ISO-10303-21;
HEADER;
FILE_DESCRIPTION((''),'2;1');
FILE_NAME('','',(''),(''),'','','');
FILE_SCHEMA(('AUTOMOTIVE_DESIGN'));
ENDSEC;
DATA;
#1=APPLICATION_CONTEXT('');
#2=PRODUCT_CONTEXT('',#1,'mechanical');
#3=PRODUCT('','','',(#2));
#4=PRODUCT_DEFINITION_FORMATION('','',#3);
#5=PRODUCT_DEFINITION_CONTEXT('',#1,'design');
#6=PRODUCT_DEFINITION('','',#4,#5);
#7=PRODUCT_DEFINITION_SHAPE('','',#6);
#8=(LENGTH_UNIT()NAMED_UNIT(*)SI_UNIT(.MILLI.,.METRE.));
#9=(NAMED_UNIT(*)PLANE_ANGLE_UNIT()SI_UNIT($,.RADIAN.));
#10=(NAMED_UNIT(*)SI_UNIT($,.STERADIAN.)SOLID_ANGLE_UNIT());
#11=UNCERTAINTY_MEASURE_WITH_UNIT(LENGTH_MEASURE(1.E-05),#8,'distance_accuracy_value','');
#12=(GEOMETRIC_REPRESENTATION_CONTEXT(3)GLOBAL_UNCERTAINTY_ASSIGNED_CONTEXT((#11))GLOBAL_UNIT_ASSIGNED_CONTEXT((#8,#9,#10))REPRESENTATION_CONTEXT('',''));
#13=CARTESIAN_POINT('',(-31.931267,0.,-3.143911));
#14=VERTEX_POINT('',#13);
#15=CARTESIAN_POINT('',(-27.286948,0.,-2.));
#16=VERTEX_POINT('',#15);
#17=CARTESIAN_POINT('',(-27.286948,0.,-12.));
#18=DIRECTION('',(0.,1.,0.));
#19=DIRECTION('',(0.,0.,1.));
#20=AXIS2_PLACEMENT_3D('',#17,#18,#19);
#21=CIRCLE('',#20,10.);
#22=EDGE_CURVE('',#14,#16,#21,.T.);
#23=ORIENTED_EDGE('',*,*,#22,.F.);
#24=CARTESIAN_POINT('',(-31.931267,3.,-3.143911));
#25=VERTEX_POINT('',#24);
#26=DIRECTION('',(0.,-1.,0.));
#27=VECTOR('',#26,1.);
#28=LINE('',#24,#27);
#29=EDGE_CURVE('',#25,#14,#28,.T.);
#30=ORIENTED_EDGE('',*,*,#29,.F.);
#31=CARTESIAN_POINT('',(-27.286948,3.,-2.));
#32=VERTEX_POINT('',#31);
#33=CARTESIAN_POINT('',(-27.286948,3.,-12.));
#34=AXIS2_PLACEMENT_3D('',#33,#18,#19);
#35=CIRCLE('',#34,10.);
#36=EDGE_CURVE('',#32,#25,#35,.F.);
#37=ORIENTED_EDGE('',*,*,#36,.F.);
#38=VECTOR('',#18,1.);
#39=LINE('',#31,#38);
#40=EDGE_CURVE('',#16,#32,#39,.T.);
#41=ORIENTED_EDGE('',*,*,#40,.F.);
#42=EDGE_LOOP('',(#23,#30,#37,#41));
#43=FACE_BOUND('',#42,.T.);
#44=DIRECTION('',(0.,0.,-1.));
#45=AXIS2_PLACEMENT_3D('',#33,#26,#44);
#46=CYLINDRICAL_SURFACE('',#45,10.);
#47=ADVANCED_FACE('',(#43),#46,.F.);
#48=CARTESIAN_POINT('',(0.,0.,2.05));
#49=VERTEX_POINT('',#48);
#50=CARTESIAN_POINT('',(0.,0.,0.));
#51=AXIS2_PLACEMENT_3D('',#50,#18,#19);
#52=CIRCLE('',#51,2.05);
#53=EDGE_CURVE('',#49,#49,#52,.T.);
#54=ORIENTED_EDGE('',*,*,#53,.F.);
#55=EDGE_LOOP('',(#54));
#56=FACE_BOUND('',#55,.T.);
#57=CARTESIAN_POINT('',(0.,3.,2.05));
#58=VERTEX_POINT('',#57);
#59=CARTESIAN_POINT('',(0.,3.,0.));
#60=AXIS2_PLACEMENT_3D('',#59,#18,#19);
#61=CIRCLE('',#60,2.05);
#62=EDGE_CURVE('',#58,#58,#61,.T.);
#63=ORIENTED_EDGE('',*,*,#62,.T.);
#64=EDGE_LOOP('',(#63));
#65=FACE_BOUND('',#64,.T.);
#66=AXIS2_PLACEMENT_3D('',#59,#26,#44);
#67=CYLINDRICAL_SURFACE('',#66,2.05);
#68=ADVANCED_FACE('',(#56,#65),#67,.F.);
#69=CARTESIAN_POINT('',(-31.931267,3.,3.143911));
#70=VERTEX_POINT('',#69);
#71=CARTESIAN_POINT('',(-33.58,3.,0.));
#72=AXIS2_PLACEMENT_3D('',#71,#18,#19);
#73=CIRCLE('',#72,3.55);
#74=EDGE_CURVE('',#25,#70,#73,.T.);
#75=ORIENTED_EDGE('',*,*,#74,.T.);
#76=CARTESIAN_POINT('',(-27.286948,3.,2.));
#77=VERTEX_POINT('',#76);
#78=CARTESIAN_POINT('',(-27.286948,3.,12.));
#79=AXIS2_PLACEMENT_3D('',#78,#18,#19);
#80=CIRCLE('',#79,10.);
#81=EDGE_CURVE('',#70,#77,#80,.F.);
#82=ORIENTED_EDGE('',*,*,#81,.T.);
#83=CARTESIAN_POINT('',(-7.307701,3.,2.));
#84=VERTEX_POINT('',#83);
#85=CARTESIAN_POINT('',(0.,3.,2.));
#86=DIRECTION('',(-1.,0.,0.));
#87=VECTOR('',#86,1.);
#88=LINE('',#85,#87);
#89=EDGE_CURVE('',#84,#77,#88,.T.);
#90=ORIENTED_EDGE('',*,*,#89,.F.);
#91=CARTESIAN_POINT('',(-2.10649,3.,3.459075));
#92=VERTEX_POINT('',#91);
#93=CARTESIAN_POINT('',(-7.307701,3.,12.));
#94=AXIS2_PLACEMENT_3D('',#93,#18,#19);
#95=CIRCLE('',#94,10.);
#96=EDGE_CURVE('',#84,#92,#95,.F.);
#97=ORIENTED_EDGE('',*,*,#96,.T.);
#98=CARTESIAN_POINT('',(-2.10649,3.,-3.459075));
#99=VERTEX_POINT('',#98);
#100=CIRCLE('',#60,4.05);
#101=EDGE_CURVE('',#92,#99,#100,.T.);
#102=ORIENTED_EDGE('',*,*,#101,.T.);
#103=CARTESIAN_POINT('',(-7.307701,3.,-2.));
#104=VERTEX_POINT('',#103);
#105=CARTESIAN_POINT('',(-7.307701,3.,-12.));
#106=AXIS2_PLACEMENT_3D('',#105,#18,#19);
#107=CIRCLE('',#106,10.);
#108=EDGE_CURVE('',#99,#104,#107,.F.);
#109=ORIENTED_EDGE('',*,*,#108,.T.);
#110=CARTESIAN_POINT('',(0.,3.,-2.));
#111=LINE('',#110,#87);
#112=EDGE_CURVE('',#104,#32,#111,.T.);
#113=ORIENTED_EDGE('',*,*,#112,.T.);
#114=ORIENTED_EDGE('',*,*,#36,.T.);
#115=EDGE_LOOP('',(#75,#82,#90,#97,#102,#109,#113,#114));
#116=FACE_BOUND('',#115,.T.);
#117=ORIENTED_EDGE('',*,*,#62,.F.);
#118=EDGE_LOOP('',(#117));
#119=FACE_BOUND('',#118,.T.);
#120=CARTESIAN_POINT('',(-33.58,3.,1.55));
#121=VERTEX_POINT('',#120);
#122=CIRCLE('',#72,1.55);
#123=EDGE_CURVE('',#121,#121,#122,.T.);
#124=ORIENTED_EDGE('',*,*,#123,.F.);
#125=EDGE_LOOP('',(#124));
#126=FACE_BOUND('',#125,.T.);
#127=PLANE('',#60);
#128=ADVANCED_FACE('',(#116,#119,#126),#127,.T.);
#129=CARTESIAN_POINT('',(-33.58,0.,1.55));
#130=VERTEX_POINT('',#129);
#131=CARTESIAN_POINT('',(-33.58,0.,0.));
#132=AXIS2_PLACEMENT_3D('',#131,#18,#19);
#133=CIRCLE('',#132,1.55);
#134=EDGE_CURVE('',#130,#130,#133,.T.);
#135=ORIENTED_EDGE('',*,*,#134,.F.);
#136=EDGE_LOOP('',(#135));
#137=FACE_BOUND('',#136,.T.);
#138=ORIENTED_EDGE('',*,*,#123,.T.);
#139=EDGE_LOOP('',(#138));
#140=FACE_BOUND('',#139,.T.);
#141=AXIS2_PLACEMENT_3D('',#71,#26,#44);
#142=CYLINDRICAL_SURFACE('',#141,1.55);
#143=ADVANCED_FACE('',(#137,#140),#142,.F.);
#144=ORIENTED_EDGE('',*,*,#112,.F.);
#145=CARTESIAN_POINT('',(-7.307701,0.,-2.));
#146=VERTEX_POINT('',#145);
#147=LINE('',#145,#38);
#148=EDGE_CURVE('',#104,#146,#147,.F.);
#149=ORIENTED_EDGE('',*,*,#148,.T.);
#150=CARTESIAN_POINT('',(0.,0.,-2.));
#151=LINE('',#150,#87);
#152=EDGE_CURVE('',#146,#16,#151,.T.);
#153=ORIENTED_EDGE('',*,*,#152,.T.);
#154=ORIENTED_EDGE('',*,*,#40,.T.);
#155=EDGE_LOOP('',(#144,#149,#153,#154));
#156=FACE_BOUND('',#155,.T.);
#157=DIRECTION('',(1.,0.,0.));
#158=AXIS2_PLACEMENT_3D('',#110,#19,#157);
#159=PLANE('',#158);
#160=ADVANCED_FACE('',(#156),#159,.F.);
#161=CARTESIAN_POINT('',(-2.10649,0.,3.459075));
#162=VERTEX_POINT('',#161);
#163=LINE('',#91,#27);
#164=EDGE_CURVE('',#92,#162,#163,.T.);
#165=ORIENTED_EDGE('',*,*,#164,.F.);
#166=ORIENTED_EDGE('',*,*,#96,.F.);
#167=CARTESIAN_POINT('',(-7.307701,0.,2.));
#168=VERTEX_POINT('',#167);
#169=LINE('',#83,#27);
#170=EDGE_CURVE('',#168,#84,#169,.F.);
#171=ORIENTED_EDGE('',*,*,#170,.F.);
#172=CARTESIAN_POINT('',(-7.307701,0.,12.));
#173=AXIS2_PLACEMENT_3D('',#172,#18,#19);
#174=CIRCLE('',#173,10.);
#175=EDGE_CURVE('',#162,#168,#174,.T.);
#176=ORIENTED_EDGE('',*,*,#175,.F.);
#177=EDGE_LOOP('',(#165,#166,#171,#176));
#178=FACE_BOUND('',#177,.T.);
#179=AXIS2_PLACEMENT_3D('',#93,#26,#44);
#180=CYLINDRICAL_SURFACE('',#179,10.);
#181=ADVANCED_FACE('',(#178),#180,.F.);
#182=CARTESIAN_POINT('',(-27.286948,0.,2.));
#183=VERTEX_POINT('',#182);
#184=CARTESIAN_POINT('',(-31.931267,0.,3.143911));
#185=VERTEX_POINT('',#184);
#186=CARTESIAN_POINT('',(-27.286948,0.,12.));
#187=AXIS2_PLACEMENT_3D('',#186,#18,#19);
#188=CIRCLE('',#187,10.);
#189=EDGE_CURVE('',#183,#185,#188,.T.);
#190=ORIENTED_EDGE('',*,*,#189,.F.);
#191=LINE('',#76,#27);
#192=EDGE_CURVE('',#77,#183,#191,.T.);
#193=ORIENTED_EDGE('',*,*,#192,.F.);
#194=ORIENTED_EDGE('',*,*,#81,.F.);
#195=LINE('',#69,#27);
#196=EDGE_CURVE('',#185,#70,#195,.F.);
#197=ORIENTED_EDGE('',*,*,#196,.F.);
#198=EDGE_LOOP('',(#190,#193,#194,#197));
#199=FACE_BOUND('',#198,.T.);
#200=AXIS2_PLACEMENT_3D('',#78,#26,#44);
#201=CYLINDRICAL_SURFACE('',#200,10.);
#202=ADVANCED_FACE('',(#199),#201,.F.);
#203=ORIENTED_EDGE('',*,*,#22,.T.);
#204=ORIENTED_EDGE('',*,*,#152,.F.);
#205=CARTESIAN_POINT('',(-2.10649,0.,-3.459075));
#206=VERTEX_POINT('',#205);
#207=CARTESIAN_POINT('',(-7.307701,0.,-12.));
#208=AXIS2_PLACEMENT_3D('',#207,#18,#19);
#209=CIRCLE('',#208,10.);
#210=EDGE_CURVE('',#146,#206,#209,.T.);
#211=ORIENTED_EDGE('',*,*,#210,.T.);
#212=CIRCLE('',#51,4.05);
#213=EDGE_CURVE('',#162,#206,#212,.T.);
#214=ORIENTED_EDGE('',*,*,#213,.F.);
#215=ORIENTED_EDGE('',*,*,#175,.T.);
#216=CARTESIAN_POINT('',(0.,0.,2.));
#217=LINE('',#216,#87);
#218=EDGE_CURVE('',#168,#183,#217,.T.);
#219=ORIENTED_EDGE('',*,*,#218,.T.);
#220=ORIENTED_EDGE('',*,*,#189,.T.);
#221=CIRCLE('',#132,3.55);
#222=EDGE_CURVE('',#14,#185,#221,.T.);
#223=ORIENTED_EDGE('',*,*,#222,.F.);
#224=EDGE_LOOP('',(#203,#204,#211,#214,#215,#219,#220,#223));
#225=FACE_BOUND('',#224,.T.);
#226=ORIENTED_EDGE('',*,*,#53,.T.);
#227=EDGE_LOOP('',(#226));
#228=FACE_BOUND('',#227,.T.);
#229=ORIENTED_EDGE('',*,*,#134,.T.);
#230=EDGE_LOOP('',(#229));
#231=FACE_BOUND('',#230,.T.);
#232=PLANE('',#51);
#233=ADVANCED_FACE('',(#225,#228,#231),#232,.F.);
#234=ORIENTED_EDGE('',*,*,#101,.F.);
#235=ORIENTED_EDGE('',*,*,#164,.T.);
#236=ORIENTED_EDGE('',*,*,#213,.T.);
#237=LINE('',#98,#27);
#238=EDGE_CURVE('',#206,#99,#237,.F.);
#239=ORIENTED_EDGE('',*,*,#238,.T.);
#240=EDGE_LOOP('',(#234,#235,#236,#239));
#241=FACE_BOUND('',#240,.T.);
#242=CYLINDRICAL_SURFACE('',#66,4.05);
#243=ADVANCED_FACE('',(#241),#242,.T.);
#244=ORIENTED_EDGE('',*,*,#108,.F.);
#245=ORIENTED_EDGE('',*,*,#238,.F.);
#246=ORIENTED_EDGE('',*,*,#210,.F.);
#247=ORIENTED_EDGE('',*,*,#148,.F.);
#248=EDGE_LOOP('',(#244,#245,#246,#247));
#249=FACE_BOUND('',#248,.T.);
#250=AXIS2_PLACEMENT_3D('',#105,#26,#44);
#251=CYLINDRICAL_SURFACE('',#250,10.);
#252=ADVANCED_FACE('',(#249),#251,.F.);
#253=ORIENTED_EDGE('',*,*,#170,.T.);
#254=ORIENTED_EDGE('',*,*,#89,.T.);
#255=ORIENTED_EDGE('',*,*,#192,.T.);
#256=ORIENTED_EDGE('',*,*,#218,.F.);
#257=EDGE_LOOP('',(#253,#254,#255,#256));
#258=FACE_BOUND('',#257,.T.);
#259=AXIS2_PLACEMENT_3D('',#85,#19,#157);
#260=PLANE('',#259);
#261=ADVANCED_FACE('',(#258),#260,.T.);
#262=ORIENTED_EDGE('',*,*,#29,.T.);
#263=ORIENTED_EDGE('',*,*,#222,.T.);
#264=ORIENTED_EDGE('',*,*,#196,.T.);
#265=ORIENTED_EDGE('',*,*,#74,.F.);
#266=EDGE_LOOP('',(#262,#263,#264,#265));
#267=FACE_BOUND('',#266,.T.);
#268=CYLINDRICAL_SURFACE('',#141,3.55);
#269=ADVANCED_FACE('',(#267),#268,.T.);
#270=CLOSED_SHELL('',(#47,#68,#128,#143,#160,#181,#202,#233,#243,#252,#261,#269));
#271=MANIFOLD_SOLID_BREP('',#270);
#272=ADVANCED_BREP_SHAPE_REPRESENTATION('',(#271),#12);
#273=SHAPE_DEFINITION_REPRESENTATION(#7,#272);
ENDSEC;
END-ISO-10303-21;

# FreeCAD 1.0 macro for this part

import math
import FreeCAD as App
import Part
import Sketcher
Q = App.Units.Quantity


def edges_at(feature, points):
    """Names of the edges that pass closest to the given points."""
    edges = feature.Shape.Edges
    near = lambda p: min(range(len(edges)), key=lambda i: edges[i].distToShape(Part.Vertex(*p))[0])
    return sorted({f"Edge{near(p) + 1}" for p in points})

doc = App.newDocument("Part")
body = doc.addObject("PartDesign::Body", "Body")

# Sketch on XZ plane
sketch1 = body.newObject("Sketcher::SketchObject", "Sketch")
sketch1.AttachmentSupport = (doc.getObject("XZ_Plane"), [""])
sketch1.MapMode = "FlatFace"
sketch1.addGeometry([
    Part.LineSegment(App.Vector(-3.521718, -2, 0), App.Vector(-30.646998, -2, 0)),  # 0
    Part.ArcOfCircle(Part.Circle(App.Vector(-33.58, 0, 0), App.Vector(0, 0, 1), 3.55), math.radians(34.289891), math.radians(325.710109)),  # 1
    Part.LineSegment(App.Vector(-30.646998, 2, 0), App.Vector(-3.521718, 2, 0)),  # 2
    Part.ArcOfCircle(Part.Circle(App.Vector(0, 0, 0), App.Vector(0, 0, 1), 4.05), math.radians(-150.407558), math.radians(150.407558)),  # 3
    Part.Circle(App.Vector(-33.58, 0, 0), App.Vector(0, 0, 1), 1.55),  # 4
    Part.Circle(App.Vector(0, 0, 0), App.Vector(0, 0, 1), 2.05),  # 5
], False)
sketch1.addConstraint([
    Sketcher.Constraint("Coincident", 0, 2, 1, 2),
    Sketcher.Constraint("Coincident", 1, 1, 2, 1),
    Sketcher.Constraint("Coincident", 2, 2, 3, 2),
    Sketcher.Constraint("Coincident", 3, 1, 0, 1),
    Sketcher.Constraint("Horizontal", 0),
    Sketcher.Constraint("Horizontal", 2),
    Sketcher.Constraint("Coincident", 3, 3, -1, 1),
    Sketcher.Constraint("Coincident", 5, 3, -1, 1),
    Sketcher.Constraint("Coincident", 4, 3, 1, 3),
    Sketcher.Constraint("Symmetric", 0, 2, 1, 1, -1),
    Sketcher.Constraint("Diameter", 4, Q("3.1 mm")),
    Sketcher.Constraint("Diameter", 5, Q("4.1 mm")),
    Sketcher.Constraint("Radius", 1, Q("3.55 mm")),
    Sketcher.Constraint("Radius", 3, Q("4.05 mm")),
    Sketcher.Constraint("DistanceY", 0, 2, -1, 1, Q("2 mm")),
    Sketcher.Constraint("DistanceX", 1, 3, -1, 1, Q("33.58 mm")),
])
pad1 = body.newObject("PartDesign::Pad", "Pad")
pad1.Profile = sketch1
pad1.Length = 3
pad1.Reversed = True
doc.recompute()

fillet = body.newObject("PartDesign::Fillet", "Fillet")
fillet.Base = (pad1, edges_at(pad1, [
    (-3.522, 1.5, 2),
    (-30.647, 1.5, 2),
    (-30.647, 1.5, -2),
    (-3.522, 1.5, -2),
]))
fillet.Radius = 10

doc.recompute()
